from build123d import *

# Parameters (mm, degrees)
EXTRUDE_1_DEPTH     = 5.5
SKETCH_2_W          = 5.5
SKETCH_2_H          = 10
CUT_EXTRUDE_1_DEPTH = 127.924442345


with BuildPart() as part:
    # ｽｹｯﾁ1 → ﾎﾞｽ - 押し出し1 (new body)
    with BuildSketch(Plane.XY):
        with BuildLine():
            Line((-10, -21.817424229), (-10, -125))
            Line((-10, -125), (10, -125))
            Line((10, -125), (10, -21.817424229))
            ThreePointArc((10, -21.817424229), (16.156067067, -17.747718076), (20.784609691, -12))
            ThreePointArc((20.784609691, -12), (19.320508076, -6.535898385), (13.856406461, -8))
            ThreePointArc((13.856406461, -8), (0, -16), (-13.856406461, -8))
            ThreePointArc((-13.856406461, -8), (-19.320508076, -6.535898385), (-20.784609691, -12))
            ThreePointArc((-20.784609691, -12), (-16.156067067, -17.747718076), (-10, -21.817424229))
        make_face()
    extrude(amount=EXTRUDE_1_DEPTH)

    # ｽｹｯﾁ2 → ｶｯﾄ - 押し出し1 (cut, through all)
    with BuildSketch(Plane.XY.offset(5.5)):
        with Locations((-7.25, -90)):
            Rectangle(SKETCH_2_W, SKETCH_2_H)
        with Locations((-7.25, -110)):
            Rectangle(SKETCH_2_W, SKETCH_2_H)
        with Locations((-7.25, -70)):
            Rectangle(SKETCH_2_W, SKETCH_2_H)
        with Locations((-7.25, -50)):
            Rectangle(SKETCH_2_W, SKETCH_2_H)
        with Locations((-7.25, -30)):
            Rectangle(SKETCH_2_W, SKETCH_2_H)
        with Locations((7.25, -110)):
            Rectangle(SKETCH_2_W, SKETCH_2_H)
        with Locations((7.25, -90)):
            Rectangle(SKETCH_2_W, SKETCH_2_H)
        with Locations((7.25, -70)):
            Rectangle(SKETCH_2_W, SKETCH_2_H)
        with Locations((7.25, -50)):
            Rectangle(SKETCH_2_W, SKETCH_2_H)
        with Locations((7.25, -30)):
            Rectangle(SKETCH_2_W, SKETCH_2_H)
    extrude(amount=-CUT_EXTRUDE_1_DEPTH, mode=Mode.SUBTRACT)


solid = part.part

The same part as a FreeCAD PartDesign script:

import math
import FreeCAD as App
import Part
import Sketcher
Q = App.Units.Quantity


def add_polygon(sketch, points):
    """Adds a closed chain of lines whose ends are joined by coincident constraints."""
    first, n = sketch.GeometryCount, len(points)
    for a, b in zip(points, points[1:] + points[:1]):
        sketch.addGeometry(Part.LineSegment(App.Vector(*a, 0), App.Vector(*b, 0)), False)
    for i in range(n):
        sketch.addConstraint(Sketcher.Constraint("Coincident", first + i, 2, first + (i + 1) % n, 1))

doc = App.newDocument("Part")
body = doc.addObject("PartDesign::Body", "Body")

# Sketch on XY plane
sketch1 = body.newObject("Sketcher::SketchObject", "Sketch")
sketch1.AttachmentSupport = (doc.getObject("XY_Plane"), [""])
sketch1.MapMode = "FlatFace"
sketch1.addGeometry(Part.LineSegment(App.Vector(-10, -21.8, 0), App.Vector(-10, -125, 0)), False)
sketch1.addGeometry(Part.LineSegment(App.Vector(-10, -125, 0), App.Vector(10, -125, 0)), False)
sketch1.addGeometry(Part.LineSegment(App.Vector(10, -125, 0), App.Vector(10, -21.8, 0)), False)
sketch1.addGeometry(Part.ArcOfCircle(Part.Circle(App.Vector(0, 0, 0), App.Vector(0, 0, 1), 24), math.radians(-65), math.radians(-30)), False)
sketch1.addGeometry(Part.ArcOfCircle(Part.Circle(App.Vector(17.3, -10, 0), App.Vector(0, 0, 1), 4), math.radians(-30), math.radians(150)), False)
sketch1.addGeometry(Part.ArcOfCircle(Part.Circle(App.Vector(0, 0, 0), App.Vector(0, 0, 1), 16), math.radians(-150), math.radians(-30)), False)
sketch1.addGeometry(Part.ArcOfCircle(Part.Circle(App.Vector(-17.3, -10, 0), App.Vector(0, 0, 1), 4), math.radians(30), math.radians(210)), False)
sketch1.addGeometry(Part.ArcOfCircle(Part.Circle(App.Vector(0, 0, 0), App.Vector(0, 0, 1), 24), math.radians(-150), math.radians(-115)), False)
sketch1.addConstraint(Sketcher.Constraint("Coincident", 0, 2, 1, 1))
sketch1.addConstraint(Sketcher.Constraint("Coincident", 1, 2, 2, 1))
sketch1.addConstraint(Sketcher.Constraint("Coincident", 2, 2, 3, 1))
sketch1.addConstraint(Sketcher.Constraint("Tangent", 3, 2, 4, 1))
sketch1.addConstraint(Sketcher.Constraint("Tangent", 4, 2, 5, 2))
sketch1.addConstraint(Sketcher.Constraint("Tangent", 5, 1, 6, 1))
sketch1.addConstraint(Sketcher.Constraint("Tangent", 6, 2, 7, 1))
sketch1.addConstraint(Sketcher.Constraint("Coincident", 7, 2, 0, 1))
sketch1.addConstraint(Sketcher.Constraint("Vertical", 0))
sketch1.addConstraint(Sketcher.Constraint("Horizontal", 1))
sketch1.addConstraint(Sketcher.Constraint("Vertical", 2))
sketch1.addConstraint(Sketcher.Constraint("Coincident", 3, 3, -1, 1))
sketch1.addConstraint(Sketcher.Constraint("Coincident", 5, 3, -1, 1))
sketch1.addConstraint(Sketcher.Constraint("Coincident", 7, 3, -1, 1))
sketch1.addConstraint(Sketcher.Constraint("Equal", 4, 6))
sketch1.addConstraint(Sketcher.Constraint("Horizontal", 4, 3, 6, 3))
sketch1.addConstraint(Sketcher.Constraint("Horizontal", 2, 2, 7, 2))
sketch1.addConstraint(Sketcher.Constraint("Radius", 3, Q("24 mm")))
sketch1.addConstraint(Sketcher.Constraint("Radius", 4, Q("4 mm")))
sketch1.addConstraint(Sketcher.Constraint("DistanceX", 1, 1, 1, 2, Q("20 mm")))
sketch1.addConstraint(Sketcher.Constraint("DistanceY", 4, 3, -1, 1, Q("10 mm")))
sketch1.addConstraint(Sketcher.Constraint("DistanceY", 0, 2, -1, 1, Q("125 mm")))
pad1 = body.newObject("PartDesign::Pad", "Pad")
pad1.Profile = sketch1
pad1.Length = 5.5

# Sketch on XY plane
sketch2 = body.newObject("Sketcher::SketchObject", "Sketch001")
sketch2.AttachmentSupport = (doc.getObject("XY_Plane"), [""])
sketch2.MapMode = "FlatFace"
sketch2.AttachmentOffset = App.Placement(App.Vector(0, 0, 5.5), App.Rotation())
add_polygon(sketch2, [(-10, -85), (-10, -95), (-4, -95), (-4, -85)])  # lines 0-3
add_polygon(sketch2, [(-10, -105), (-10, -115), (-4, -115), (-4, -105)])  # lines 4-7
add_polygon(sketch2, [(-10, -65), (-10, -75), (-4, -75), (-4, -65)])  # lines 8-11
add_polygon(sketch2, [(-10, -45), (-10, -55), (-4, -55), (-4, -45)])  # lines 12-15
add_polygon(sketch2, [(-10, -25), (-10, -35), (-4, -35), (-4, -25)])  # lines 16-19
add_polygon(sketch2, [(4, -105), (4, -115), (10, -115), (10, -105)])  # lines 20-23
add_polygon(sketch2, [(4, -85), (4, -95), (10, -95), (10, -85)])  # lines 24-27
add_polygon(sketch2, [(4, -65), (4, -75), (10, -75), (10, -65)])  # lines 28-31
add_polygon(sketch2, [(4, -45), (4, -55), (10, -55), (10, -45)])  # lines 32-35
add_polygon(sketch2, [(4, -25), (4, -35), (10, -35), (10, -25)])  # lines 36-39
sketch2.addConstraint(Sketcher.Constraint("Vertical", 0))
sketch2.addConstraint(Sketcher.Constraint("Horizontal", 1))
sketch2.addConstraint(Sketcher.Constraint("Vertical", 2))
sketch2.addConstraint(Sketcher.Constraint("Horizontal", 3))
sketch2.addConstraint(Sketcher.Constraint("Vertical", 4))
sketch2.addConstraint(Sketcher.Constraint("Horizontal", 5))
sketch2.addConstraint(Sketcher.Constraint("Vertical", 6))
sketch2.addConstraint(Sketcher.Constraint("Horizontal", 7))
sketch2.addConstraint(Sketcher.Constraint("Vertical", 8))
sketch2.addConstraint(Sketcher.Constraint("Horizontal", 9))
sketch2.addConstraint(Sketcher.Constraint("Vertical", 10))
sketch2.addConstraint(Sketcher.Constraint("Horizontal", 11))
sketch2.addConstraint(Sketcher.Constraint("Vertical", 12))
sketch2.addConstraint(Sketcher.Constraint("Horizontal", 13))
sketch2.addConstraint(Sketcher.Constraint("Vertical", 14))
sketch2.addConstraint(Sketcher.Constraint("Horizontal", 15))
sketch2.addConstraint(Sketcher.Constraint("Vertical", 16))
sketch2.addConstraint(Sketcher.Constraint("Horizontal", 17))
sketch2.addConstraint(Sketcher.Constraint("Vertical", 18))
sketch2.addConstraint(Sketcher.Constraint("Horizontal", 19))
sketch2.addConstraint(Sketcher.Constraint("Vertical", 20))
sketch2.addConstraint(Sketcher.Constraint("Horizontal", 21))
sketch2.addConstraint(Sketcher.Constraint("Vertical", 22))
sketch2.addConstraint(Sketcher.Constraint("Horizontal", 23))
sketch2.addConstraint(Sketcher.Constraint("Vertical", 24))
sketch2.addConstraint(Sketcher.Constraint("Horizontal", 25))
sketch2.addConstraint(Sketcher.Constraint("Vertical", 26))
sketch2.addConstraint(Sketcher.Constraint("Horizontal", 27))
sketch2.addConstraint(Sketcher.Constraint("Vertical", 28))
sketch2.addConstraint(Sketcher.Constraint("Horizontal", 29))
sketch2.addConstraint(Sketcher.Constraint("Vertical", 30))
sketch2.addConstraint(Sketcher.Constraint("Horizontal", 31))
sketch2.addConstraint(Sketcher.Constraint("Vertical", 32))
sketch2.addConstraint(Sketcher.Constraint("Horizontal", 33))
sketch2.addConstraint(Sketcher.Constraint("Vertical", 34))
sketch2.addConstraint(Sketcher.Constraint("Horizontal", 35))
sketch2.addConstraint(Sketcher.Constraint("Vertical", 36))
sketch2.addConstraint(Sketcher.Constraint("Horizontal", 37))
sketch2.addConstraint(Sketcher.Constraint("Vertical", 38))
sketch2.addConstraint(Sketcher.Constraint("Horizontal", 39))
sketch2.addConstraint(Sketcher.Constraint("Symmetric", 5, 2, 20, 2, -2))
sketch2.addConstraint(Sketcher.Constraint("Symmetric", 7, 2, 22, 2, -2))
sketch2.addConstraint(Sketcher.Constraint("Symmetric", 1, 2, 24, 2, -2))
sketch2.addConstraint(Sketcher.Constraint("Symmetric", 3, 2, 26, 2, -2))
sketch2.addConstraint(Sketcher.Constraint("Symmetric", 9, 2, 28, 2, -2))
sketch2.addConstraint(Sketcher.Constraint("Symmetric", 11, 2, 30, 2, -2))
sketch2.addConstraint(Sketcher.Constraint("Symmetric", 13, 2, 32, 2, -2))
sketch2.addConstraint(Sketcher.Constraint("Symmetric", 15, 2, 34, 2, -2))
sketch2.addConstraint(Sketcher.Constraint("Symmetric", 17, 2, 36, 2, -2))
sketch2.addConstraint(Sketcher.Constraint("Symmetric", 19, 2, 38, 2, -2))
sketch2.addConstraint(Sketcher.Constraint("Vertical", 3, 2, 4, 2))
sketch2.addConstraint(Sketcher.Constraint("Vertical", 2, 2, 5, 2))
sketch2.addConstraint(Sketcher.Constraint("Vertical", 7, 2, 8, 2))
sketch2.addConstraint(Sketcher.Constraint("Vertical", 6, 2, 9, 2))
sketch2.addConstraint(Sketcher.Constraint("Vertical", 11, 2, 12, 2))
sketch2.addConstraint(Sketcher.Constraint("Vertical", 10, 2, 13, 2))
sketch2.addConstraint(Sketcher.Constraint("Vertical", 15, 2, 16, 2))
sketch2.addConstraint(Sketcher.Constraint("Vertical", 14, 2, 17, 2))
sketch2.addConstraint(Sketcher.Constraint("Equal", 2, 4))
sketch2.addConstraint(Sketcher.Constraint("Equal", 6, 8))
sketch2.addConstraint(Sketcher.Constraint("Equal", 10, 12))
sketch2.addConstraint(Sketcher.Constraint("Equal", 14, 16))
sketch2.addConstraint(Sketcher.Constraint("DistanceY", 0, 2, 0, 1, Q("10 mm")))
sketch2.addConstraint(Sketcher.Constraint("DistanceX", 1, 1, 1, 2, Q("5.5 mm")))
sketch2.addConstraint(Sketcher.Constraint("DistanceX", 0, 2, -1, 1, Q("10 mm")))
sketch2.addConstraint(Sketcher.Constraint("DistanceY", 0, 2, -1, 1, Q("95 mm")))
sketch2.addConstraint(Sketcher.Constraint("DistanceY", 4, 2, -1, 1, Q("115 mm")))
sketch2.addConstraint(Sketcher.Constraint("DistanceY", 8, 2, -1, 1, Q("75 mm")))
sketch2.addConstraint(Sketcher.Constraint("DistanceY", 12, 2, -1, 1, Q("55 mm")))
sketch2.addConstraint(Sketcher.Constraint("DistanceY", 16, 2, -1, 1, Q("35 mm")))
pocket1 = body.newObject("PartDesign::Pocket", "Pocket")
pocket1.Profile = sketch2
pocket1.Type = "ThroughAll"

doc.recompute()
